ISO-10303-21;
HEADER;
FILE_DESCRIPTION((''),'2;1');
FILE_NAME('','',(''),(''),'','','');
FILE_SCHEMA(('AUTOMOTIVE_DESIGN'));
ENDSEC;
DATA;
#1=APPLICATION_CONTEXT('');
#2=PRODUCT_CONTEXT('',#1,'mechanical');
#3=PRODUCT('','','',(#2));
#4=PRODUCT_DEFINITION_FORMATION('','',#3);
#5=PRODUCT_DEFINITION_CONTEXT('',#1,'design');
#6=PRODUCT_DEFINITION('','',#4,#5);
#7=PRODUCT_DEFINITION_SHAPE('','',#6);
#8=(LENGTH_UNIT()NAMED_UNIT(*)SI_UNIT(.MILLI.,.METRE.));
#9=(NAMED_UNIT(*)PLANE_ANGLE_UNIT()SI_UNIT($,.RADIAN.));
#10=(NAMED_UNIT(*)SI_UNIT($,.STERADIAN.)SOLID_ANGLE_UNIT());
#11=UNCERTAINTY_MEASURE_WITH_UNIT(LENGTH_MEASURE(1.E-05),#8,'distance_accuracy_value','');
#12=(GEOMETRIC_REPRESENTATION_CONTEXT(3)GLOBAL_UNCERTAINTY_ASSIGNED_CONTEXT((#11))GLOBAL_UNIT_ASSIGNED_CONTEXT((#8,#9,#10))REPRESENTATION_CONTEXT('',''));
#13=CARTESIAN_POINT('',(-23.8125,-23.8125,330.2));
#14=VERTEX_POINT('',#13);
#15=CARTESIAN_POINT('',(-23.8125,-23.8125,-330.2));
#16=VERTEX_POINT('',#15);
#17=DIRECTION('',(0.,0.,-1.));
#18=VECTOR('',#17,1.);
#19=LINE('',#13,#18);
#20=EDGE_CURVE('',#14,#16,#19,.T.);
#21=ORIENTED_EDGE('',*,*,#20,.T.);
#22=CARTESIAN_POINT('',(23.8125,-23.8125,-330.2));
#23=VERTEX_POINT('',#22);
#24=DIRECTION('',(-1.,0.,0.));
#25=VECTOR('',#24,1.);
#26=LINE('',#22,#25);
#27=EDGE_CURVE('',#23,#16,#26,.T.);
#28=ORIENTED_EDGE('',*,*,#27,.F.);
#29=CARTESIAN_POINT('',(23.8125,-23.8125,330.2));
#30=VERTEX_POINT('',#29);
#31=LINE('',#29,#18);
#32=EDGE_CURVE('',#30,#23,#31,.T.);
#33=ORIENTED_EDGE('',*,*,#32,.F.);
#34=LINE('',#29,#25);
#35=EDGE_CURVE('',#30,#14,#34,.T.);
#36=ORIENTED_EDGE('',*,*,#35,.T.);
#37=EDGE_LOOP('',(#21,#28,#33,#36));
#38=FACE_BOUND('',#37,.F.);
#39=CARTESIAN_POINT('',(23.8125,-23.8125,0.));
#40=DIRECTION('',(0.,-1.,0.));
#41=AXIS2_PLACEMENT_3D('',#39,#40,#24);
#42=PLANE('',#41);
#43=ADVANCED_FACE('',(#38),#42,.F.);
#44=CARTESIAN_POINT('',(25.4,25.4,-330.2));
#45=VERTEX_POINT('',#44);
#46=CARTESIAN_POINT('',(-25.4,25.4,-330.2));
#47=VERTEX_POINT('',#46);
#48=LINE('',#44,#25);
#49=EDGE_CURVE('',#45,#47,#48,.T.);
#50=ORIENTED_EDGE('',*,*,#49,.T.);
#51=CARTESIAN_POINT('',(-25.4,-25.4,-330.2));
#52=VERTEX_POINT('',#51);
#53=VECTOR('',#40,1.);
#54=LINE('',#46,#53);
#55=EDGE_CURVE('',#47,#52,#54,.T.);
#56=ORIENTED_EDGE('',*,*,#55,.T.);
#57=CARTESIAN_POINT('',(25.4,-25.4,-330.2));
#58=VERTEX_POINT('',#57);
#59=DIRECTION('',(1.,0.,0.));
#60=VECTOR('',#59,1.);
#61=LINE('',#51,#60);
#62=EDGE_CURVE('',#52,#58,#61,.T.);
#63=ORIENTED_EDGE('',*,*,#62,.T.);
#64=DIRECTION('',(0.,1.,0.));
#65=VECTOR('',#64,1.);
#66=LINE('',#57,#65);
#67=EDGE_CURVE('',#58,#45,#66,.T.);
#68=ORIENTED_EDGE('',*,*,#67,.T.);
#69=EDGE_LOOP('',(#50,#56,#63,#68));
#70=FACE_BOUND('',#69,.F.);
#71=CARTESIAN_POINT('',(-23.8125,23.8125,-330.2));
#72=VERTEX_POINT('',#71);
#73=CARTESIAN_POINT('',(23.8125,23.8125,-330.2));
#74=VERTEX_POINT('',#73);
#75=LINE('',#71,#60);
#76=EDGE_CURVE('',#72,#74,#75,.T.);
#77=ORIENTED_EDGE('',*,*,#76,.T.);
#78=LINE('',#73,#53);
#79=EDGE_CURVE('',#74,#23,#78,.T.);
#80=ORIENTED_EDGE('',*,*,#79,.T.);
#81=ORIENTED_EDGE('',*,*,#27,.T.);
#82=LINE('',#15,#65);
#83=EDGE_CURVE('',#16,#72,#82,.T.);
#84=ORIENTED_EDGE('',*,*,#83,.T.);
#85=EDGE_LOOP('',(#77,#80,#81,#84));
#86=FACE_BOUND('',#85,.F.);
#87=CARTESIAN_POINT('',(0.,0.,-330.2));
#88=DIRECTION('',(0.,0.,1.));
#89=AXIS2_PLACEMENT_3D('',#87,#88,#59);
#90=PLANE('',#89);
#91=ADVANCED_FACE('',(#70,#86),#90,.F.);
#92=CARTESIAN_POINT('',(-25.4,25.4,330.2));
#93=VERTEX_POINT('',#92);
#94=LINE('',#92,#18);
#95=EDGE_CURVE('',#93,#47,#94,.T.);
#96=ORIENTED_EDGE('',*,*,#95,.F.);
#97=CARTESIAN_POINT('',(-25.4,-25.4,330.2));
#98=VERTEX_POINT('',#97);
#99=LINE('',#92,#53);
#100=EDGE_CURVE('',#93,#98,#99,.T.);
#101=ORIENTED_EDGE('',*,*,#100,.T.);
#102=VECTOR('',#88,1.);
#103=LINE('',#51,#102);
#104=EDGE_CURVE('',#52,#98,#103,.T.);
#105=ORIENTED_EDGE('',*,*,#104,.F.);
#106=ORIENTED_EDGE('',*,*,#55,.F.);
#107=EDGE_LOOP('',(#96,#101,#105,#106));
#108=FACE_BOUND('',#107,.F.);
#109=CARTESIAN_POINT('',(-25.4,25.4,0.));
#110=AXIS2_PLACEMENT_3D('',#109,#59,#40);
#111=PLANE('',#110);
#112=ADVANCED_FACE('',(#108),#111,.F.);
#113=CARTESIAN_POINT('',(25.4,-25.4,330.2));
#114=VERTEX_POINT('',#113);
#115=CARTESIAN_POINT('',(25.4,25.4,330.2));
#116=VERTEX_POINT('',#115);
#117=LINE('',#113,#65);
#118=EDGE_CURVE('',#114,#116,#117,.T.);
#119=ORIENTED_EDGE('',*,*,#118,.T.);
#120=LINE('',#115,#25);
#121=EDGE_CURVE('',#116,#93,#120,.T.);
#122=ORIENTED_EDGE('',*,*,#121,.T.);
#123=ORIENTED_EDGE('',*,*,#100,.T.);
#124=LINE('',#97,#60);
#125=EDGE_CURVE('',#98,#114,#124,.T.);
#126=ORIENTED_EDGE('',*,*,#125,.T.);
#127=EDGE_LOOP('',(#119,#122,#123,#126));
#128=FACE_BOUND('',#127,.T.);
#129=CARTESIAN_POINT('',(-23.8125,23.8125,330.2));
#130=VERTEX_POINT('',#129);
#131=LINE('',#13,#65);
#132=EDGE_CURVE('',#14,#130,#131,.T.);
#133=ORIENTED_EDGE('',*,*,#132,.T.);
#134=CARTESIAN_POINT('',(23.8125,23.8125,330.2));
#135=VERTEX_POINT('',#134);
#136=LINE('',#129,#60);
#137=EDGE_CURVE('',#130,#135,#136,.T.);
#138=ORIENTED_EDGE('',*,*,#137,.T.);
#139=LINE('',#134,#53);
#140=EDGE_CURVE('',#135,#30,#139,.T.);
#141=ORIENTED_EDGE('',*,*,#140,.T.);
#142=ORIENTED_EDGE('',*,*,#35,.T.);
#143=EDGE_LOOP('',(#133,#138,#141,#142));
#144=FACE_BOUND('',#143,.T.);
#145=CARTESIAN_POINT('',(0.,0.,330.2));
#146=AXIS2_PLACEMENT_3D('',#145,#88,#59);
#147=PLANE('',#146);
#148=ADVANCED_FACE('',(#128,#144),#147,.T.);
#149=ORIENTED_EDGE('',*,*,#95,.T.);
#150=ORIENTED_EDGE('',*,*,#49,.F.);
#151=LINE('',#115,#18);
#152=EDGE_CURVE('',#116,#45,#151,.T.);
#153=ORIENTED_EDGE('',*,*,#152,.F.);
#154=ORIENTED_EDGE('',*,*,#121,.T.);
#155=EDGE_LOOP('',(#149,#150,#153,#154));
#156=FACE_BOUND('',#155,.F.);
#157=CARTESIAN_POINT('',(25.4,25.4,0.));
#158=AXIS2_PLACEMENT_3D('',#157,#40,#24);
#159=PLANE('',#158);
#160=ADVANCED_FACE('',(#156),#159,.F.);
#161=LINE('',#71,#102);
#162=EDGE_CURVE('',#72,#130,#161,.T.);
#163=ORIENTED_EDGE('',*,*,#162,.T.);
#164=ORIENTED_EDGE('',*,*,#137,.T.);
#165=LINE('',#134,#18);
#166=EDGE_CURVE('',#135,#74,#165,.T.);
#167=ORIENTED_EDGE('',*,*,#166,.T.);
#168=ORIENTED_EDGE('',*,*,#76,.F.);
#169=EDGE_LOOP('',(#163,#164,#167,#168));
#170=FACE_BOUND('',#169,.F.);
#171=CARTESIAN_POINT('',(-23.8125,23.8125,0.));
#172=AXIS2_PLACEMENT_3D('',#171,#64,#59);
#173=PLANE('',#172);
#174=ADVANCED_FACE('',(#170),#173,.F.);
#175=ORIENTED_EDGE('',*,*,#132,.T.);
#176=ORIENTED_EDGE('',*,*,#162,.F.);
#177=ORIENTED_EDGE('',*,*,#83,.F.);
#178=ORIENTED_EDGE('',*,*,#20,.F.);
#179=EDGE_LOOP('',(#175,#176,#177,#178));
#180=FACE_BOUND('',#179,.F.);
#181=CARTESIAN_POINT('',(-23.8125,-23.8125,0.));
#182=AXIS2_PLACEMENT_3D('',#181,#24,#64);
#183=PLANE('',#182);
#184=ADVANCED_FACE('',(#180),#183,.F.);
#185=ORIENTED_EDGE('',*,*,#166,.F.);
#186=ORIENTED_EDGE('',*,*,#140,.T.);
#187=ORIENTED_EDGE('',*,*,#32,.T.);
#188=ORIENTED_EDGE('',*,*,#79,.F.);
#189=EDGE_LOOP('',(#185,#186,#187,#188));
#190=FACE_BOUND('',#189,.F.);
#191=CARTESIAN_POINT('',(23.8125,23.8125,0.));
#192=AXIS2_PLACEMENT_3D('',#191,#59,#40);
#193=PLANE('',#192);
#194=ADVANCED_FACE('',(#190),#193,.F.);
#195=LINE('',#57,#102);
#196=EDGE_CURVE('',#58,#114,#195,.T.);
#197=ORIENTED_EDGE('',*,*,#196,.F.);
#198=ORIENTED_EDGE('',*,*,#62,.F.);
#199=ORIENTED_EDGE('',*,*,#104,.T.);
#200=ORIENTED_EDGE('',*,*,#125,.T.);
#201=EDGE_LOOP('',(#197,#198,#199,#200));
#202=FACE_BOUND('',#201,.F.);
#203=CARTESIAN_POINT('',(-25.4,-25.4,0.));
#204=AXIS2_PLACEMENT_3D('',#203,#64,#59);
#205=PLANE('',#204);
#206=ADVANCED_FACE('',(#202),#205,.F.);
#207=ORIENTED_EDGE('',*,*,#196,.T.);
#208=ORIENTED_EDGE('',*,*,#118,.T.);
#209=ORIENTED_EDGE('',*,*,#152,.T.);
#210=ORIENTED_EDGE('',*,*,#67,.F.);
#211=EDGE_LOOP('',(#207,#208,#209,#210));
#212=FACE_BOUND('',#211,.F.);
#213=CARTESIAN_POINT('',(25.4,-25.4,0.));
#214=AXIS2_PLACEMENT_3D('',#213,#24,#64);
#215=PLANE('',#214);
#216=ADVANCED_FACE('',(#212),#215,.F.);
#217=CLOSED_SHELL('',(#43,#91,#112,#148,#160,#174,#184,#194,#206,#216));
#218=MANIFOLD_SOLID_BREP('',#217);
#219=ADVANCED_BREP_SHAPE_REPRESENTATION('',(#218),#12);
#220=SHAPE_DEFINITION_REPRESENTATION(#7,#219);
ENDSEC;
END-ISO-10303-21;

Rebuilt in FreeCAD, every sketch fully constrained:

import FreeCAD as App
import Part
import Sketcher
from FreeCAD import Vector
Q = App.Units.Quantity

doc = App.newDocument("Part")
body = doc.addObject("PartDesign::Body", "Body")

sketch1 = body.newObject("Sketcher::SketchObject", "Sketch")
sketch1.AttachmentSupport = (doc.getObject("XY_Plane"), [""])
sketch1.MapMode = "FlatFace"
sketch1.addGeometry(Part.LineSegment(Vector(-25.4, 25.4, 0), Vector(-25.4, -25.4, 0)), False)
sketch1.addGeometry(Part.LineSegment(Vector(-25.4, -25.4, 0), Vector(25.4, -25.4, 0)), False)
sketch1.addGeometry(Part.LineSegment(Vector(25.4, -25.4, 0), Vector(25.4, 25.4, 0)), False)
sketch1.addGeometry(Part.LineSegment(Vector(25.4, 25.4, 0), Vector(-25.4, 25.4, 0)), False)
sketch1.addGeometry(Part.LineSegment(Vector(-23.8125, -23.8125, 0), Vector(-23.8125, 23.8125, 0)), False)
sketch1.addGeometry(Part.LineSegment(Vector(-23.8125, 23.8125, 0), Vector(23.8125, 23.8125, 0)), False)
sketch1.addGeometry(Part.LineSegment(Vector(23.8125, 23.8125, 0), Vector(23.8125, -23.8125, 0)), False)
sketch1.addGeometry(Part.LineSegment(Vector(23.8125, -23.8125, 0), Vector(-23.8125, -23.8125, 0)), False)
sketch1.addConstraint(Sketcher.Constraint("Coincident", 0, 2, 1, 1))
sketch1.addConstraint(Sketcher.Constraint("Coincident", 1, 2, 2, 1))
sketch1.addConstraint(Sketcher.Constraint("Coincident", 2, 2, 3, 1))
sketch1.addConstraint(Sketcher.Constraint("Coincident", 3, 2, 0, 1))
sketch1.addConstraint(Sketcher.Constraint("Coincident", 4, 2, 5, 1))
sketch1.addConstraint(Sketcher.Constraint("Coincident", 5, 2, 6, 1))
sketch1.addConstraint(Sketcher.Constraint("Coincident", 6, 2, 7, 1))
sketch1.addConstraint(Sketcher.Constraint("Coincident", 7, 2, 4, 1))
sketch1.addConstraint(Sketcher.Constraint("Vertical", 0))
sketch1.addConstraint(Sketcher.Constraint("Horizontal", 1))
sketch1.addConstraint(Sketcher.Constraint("Vertical", 2))
sketch1.addConstraint(Sketcher.Constraint("Horizontal", 3))
sketch1.addConstraint(Sketcher.Constraint("Vertical", 4))
sketch1.addConstraint(Sketcher.Constraint("Horizontal", 5))
sketch1.addConstraint(Sketcher.Constraint("Vertical", 6))
sketch1.addConstraint(Sketcher.Constraint("Horizontal", 7))
sketch1.addConstraint(Sketcher.Constraint("Symmetric", 0, 2, 2, 2, -1, 1))
sketch1.addConstraint(Sketcher.Constraint("Symmetric", 4, 2, 6, 2, -1, 1))
sketch1.addConstraint(Sketcher.Constraint("Equal", 3, 0))
sketch1.addConstraint(Sketcher.Constraint("Equal", 7, 4))
sketch1.addConstraint(Sketcher.Constraint("DistanceX", 1, 1, 1, 2, Q("2 in")))
sketch1.addConstraint(Sketcher.Constraint("DistanceX", 3, 2, 4, 2, Q("0.0625 in")))
pad1 = body.newObject("PartDesign::Pad", "Pad")
pad1.Profile = sketch1
pad1.Length = Q("26 in")
pad1.Midplane = True

doc.recompute()
